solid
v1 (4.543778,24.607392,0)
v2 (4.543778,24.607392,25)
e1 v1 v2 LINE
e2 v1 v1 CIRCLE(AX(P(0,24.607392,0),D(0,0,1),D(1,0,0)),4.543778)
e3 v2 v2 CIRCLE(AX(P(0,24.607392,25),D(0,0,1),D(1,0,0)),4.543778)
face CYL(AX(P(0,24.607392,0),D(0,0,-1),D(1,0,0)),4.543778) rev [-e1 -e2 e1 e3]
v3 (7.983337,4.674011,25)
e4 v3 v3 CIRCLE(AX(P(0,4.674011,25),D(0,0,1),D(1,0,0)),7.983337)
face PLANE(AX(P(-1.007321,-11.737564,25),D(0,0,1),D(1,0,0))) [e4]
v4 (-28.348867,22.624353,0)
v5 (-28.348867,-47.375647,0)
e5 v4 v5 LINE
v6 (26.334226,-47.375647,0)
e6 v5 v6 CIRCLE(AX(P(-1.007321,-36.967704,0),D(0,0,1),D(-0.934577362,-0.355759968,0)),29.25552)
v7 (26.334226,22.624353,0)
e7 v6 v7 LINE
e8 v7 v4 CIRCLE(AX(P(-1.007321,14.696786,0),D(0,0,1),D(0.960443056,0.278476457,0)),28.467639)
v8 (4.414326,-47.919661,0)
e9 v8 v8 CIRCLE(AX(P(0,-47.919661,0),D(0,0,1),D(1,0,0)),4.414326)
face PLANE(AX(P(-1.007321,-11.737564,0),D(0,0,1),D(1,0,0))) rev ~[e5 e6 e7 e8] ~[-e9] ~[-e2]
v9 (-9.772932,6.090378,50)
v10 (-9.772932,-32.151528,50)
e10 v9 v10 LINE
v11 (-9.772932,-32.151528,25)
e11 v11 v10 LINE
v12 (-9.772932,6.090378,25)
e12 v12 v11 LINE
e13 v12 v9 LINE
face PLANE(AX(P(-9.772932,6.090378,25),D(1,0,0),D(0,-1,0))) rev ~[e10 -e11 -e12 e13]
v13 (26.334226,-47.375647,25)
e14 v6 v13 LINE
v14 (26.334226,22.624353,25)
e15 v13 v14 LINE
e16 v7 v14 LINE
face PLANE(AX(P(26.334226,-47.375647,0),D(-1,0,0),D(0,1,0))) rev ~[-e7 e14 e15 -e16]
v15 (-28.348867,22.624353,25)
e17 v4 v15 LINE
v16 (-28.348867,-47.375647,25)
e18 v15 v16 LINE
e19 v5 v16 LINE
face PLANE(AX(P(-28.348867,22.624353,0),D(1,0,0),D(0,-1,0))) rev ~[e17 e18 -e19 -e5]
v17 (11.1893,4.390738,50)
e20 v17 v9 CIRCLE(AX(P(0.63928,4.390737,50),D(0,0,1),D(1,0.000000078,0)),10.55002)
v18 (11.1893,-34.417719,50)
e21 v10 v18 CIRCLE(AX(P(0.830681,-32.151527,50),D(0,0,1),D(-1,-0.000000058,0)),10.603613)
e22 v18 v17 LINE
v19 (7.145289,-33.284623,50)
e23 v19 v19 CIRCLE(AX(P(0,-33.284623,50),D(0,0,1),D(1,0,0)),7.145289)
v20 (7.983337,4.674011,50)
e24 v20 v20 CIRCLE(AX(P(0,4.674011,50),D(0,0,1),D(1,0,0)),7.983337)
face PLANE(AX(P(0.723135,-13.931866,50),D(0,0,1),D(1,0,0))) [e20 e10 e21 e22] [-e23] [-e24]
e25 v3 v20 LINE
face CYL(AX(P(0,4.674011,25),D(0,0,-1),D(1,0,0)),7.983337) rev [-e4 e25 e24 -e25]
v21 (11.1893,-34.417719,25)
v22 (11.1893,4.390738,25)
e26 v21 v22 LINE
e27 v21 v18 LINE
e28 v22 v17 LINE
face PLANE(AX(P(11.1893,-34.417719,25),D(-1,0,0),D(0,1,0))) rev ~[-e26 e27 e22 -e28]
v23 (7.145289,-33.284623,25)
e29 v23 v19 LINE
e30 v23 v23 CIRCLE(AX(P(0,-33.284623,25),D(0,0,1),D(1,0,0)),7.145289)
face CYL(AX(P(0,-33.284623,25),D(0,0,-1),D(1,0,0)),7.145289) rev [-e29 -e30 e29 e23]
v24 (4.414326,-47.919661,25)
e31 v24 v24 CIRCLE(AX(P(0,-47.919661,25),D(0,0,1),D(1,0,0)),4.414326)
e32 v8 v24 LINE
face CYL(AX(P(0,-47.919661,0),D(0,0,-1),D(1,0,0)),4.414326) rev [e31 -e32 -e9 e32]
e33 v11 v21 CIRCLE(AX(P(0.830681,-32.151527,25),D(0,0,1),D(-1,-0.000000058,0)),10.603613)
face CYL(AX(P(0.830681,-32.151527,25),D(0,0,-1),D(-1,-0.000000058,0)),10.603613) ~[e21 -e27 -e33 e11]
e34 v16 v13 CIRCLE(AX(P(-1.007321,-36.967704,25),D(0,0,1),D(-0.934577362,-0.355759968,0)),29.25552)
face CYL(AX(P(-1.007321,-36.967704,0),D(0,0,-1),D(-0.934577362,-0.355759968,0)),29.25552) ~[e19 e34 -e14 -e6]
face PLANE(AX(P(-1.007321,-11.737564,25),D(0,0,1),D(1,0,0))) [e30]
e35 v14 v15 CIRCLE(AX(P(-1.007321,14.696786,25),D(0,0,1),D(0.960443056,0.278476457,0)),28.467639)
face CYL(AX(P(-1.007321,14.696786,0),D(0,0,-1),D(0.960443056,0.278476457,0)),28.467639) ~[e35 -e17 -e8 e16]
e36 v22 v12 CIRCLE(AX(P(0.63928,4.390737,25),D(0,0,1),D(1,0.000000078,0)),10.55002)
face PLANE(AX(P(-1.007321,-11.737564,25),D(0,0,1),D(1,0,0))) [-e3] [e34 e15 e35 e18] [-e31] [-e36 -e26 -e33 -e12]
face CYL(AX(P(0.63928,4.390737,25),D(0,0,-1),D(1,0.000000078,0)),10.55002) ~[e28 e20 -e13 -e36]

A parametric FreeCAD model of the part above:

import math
import FreeCAD as App
import Part
import Sketcher

V = App.Vector

doc = App.newDocument("Part")
params = doc.addObject("Spreadsheet::Sheet", "Params")
for row, (alias, value) in enumerate([
    ("sketch1_height", "70 mm"),
    ("pad1_length", "25 mm"),
    ("pad2_length", "25 mm"),
], start=1):
    params.set(f"A{row}", alias)
    params.set(f"B{row}", "=" + value)
    params.setAlias(f"B{row}", alias)

body = doc.addObject("PartDesign::Body", "Body")

# Sketch on XY plane
sketch1 = body.newObject("Sketcher::SketchObject", "Sketch")
sketch1.AttachmentSupport = (doc.getObject("XY_Plane"), [""])
sketch1.MapMode = "FlatFace"
sketch1.addGeometry(Part.ArcOfCircle(Part.Circle(V(-1, 14.7, 0), V(0, 0, 1), 28.5), math.radians(16), math.radians(164)), False)
sketch1.addGeometry(Part.LineSegment(V(-28.3, 22.6, 0), V(-28.3, -47.4, 0)), False)
sketch1.addGeometry(Part.ArcOfCircle(Part.Circle(V(-1, -37, 0), V(0, 0, 1), 29.3), math.radians(-159), math.radians(-21)), False)
sketch1.addGeometry(Part.LineSegment(V(26.3, -47.4, 0), V(26.3, 22.6, 0)), False)
sketch1.addGeometry(Part.Circle(V(0, -47.9, 0), V(0, 0, 1), 4.4), False)
sketch1.addGeometry(Part.Circle(V(0, 24.6, 0), V(0, 0, 1), 4.5), False)
sketch1.addConstraint(Sketcher.Constraint("Coincident", 0, 2, 1, 1))
sketch1.addConstraint(Sketcher.Constraint("Coincident", 1, 2, 2, 1))
sketch1.addConstraint(Sketcher.Constraint("Coincident", 2, 2, 3, 1))
sketch1.addConstraint(Sketcher.Constraint("Coincident", 3, 2, 0, 1))
sketch1.addConstraint(Sketcher.Constraint("Vertical", 1))
sketch1.addConstraint(Sketcher.Constraint("Vertical", 3))
sketch1.addConstraint(Sketcher.Constraint("PointOnObject", 4, 3, -2))
sketch1.addConstraint(Sketcher.Constraint("PointOnObject", 5, 3, -2))
sketch1.addConstraint(Sketcher.Constraint("Horizontal", 1, 2, 2, 2))
sketch1.addConstraint(Sketcher.Constraint("Horizontal", 0, 2, 3, 2))
sketch1.addConstraint(Sketcher.Constraint("DistanceY", 1, 2, 1, 1, 70.0))
sketch1.addConstraint(Sketcher.Constraint("Radius", 0, 28.467639))
sketch1.addConstraint(Sketcher.Constraint("Radius", 2, 29.25552))
sketch1.addConstraint(Sketcher.Constraint("Diameter", 4, 8.828652))
sketch1.addConstraint(Sketcher.Constraint("Diameter", 5, 9.087556))
sketch1.addConstraint(Sketcher.Constraint("DistanceX", 0, 3, -1, 1, 1.007321))
sketch1.addConstraint(Sketcher.Constraint("DistanceY", 4, 3, -1, 1, 47.919661))
sketch1.addConstraint(Sketcher.Constraint("DistanceY", 2, 3, 0, 3, 51.66449))
sketch1.addConstraint(Sketcher.Constraint("DistanceY", 0, 2, 5, 3, 1.983039))
sketch1.addConstraint(Sketcher.Constraint("DistanceY", -1, 1, 0, 3, 14.696786))
sketch1.setExpression("Constraints[10]", "Params.sketch1_height")
pad1 = body.newObject("PartDesign::Pad", "Pad")
pad1.Profile = sketch1
pad1.setExpression("Length", "Params.pad1_length")

# Sketch on XY plane
sketch2 = body.newObject("Sketcher::SketchObject", "Sketch001")
sketch2.AttachmentSupport = (doc.getObject("XY_Plane"), [""])
sketch2.MapMode = "FlatFace"
sketch2.AttachmentOffset = App.Placement(V(0, 0, 25), App.Rotation())
sketch2.addGeometry(Part.LineSegment(V(-10, 6, 0), V(-10, -32, 0)), False)
sketch2.addGeometry(Part.ArcOfCircle(Part.Circle(V(1, -32, 0), V(0, 0, 1), 11), math.radians(-180), math.radians(-12)), False)
sketch2.addGeometry(Part.LineSegment(V(11, -34, 0), V(11, 4, 0)), False)
sketch2.addGeometry(Part.ArcOfCircle(Part.Circle(V(1, 4, 0), V(0, 0, 1), 11), math.radians(0), math.radians(171)), False)
sketch2.addGeometry(Part.Circle(V(0, -33, 0), V(0, 0, 1), 7), False)
sketch2.addGeometry(Part.Circle(V(0, 5, 0), V(0, 0, 1), 8), False)
sketch2.addConstraint(Sketcher.Constraint("Tangent", 0, 2, 1, 1))
sketch2.addConstraint(Sketcher.Constraint("Coincident", 1, 2, 2, 1))
sketch2.addConstraint(Sketcher.Constraint("Tangent", 2, 2, 3, 1))
sketch2.addConstraint(Sketcher.Constraint("Coincident", 3, 2, 0, 1))
sketch2.addConstraint(Sketcher.Constraint("Vertical", 0))
sketch2.addConstraint(Sketcher.Constraint("Vertical", 2))
sketch2.addConstraint(Sketcher.Constraint("PointOnObject", 4, 3, -2))
sketch2.addConstraint(Sketcher.Constraint("PointOnObject", 5, 3, -2))
sketch2.addConstraint(Sketcher.Constraint("Radius", 3, 10.55002))
sketch2.addConstraint(Sketcher.Constraint("Diameter", 4, 14.290578))
sketch2.addConstraint(Sketcher.Constraint("Diameter", 5, 15.966674))
sketch2.addConstraint(Sketcher.Constraint("Radius", 1, 10.603613))
sketch2.addConstraint(Sketcher.Constraint("DistanceX", -1, 1, 1, 2, 11.1893))
sketch2.addConstraint(Sketcher.Constraint("DistanceX", 3, 3, 1, 3, 0.191401))
sketch2.addConstraint(Sketcher.Constraint("DistanceY", 0, 2, 0, 1, 38.241906))
sketch2.addConstraint(Sketcher.Constraint("DistanceY", -1, 1, 5, 3, 4.674011))
sketch2.addConstraint(Sketcher.Constraint("DistanceY", 1, 2, -1, 1, 34.417719))
sketch2.addConstraint(Sketcher.Constraint("DistanceY", 4, 3, 3, 3, 37.67536))
pad2 = body.newObject("PartDesign::Pad", "Pad001")
pad2.Profile = sketch2
pad2.setExpression("Length", "Params.pad2_length")

doc.recompute()
